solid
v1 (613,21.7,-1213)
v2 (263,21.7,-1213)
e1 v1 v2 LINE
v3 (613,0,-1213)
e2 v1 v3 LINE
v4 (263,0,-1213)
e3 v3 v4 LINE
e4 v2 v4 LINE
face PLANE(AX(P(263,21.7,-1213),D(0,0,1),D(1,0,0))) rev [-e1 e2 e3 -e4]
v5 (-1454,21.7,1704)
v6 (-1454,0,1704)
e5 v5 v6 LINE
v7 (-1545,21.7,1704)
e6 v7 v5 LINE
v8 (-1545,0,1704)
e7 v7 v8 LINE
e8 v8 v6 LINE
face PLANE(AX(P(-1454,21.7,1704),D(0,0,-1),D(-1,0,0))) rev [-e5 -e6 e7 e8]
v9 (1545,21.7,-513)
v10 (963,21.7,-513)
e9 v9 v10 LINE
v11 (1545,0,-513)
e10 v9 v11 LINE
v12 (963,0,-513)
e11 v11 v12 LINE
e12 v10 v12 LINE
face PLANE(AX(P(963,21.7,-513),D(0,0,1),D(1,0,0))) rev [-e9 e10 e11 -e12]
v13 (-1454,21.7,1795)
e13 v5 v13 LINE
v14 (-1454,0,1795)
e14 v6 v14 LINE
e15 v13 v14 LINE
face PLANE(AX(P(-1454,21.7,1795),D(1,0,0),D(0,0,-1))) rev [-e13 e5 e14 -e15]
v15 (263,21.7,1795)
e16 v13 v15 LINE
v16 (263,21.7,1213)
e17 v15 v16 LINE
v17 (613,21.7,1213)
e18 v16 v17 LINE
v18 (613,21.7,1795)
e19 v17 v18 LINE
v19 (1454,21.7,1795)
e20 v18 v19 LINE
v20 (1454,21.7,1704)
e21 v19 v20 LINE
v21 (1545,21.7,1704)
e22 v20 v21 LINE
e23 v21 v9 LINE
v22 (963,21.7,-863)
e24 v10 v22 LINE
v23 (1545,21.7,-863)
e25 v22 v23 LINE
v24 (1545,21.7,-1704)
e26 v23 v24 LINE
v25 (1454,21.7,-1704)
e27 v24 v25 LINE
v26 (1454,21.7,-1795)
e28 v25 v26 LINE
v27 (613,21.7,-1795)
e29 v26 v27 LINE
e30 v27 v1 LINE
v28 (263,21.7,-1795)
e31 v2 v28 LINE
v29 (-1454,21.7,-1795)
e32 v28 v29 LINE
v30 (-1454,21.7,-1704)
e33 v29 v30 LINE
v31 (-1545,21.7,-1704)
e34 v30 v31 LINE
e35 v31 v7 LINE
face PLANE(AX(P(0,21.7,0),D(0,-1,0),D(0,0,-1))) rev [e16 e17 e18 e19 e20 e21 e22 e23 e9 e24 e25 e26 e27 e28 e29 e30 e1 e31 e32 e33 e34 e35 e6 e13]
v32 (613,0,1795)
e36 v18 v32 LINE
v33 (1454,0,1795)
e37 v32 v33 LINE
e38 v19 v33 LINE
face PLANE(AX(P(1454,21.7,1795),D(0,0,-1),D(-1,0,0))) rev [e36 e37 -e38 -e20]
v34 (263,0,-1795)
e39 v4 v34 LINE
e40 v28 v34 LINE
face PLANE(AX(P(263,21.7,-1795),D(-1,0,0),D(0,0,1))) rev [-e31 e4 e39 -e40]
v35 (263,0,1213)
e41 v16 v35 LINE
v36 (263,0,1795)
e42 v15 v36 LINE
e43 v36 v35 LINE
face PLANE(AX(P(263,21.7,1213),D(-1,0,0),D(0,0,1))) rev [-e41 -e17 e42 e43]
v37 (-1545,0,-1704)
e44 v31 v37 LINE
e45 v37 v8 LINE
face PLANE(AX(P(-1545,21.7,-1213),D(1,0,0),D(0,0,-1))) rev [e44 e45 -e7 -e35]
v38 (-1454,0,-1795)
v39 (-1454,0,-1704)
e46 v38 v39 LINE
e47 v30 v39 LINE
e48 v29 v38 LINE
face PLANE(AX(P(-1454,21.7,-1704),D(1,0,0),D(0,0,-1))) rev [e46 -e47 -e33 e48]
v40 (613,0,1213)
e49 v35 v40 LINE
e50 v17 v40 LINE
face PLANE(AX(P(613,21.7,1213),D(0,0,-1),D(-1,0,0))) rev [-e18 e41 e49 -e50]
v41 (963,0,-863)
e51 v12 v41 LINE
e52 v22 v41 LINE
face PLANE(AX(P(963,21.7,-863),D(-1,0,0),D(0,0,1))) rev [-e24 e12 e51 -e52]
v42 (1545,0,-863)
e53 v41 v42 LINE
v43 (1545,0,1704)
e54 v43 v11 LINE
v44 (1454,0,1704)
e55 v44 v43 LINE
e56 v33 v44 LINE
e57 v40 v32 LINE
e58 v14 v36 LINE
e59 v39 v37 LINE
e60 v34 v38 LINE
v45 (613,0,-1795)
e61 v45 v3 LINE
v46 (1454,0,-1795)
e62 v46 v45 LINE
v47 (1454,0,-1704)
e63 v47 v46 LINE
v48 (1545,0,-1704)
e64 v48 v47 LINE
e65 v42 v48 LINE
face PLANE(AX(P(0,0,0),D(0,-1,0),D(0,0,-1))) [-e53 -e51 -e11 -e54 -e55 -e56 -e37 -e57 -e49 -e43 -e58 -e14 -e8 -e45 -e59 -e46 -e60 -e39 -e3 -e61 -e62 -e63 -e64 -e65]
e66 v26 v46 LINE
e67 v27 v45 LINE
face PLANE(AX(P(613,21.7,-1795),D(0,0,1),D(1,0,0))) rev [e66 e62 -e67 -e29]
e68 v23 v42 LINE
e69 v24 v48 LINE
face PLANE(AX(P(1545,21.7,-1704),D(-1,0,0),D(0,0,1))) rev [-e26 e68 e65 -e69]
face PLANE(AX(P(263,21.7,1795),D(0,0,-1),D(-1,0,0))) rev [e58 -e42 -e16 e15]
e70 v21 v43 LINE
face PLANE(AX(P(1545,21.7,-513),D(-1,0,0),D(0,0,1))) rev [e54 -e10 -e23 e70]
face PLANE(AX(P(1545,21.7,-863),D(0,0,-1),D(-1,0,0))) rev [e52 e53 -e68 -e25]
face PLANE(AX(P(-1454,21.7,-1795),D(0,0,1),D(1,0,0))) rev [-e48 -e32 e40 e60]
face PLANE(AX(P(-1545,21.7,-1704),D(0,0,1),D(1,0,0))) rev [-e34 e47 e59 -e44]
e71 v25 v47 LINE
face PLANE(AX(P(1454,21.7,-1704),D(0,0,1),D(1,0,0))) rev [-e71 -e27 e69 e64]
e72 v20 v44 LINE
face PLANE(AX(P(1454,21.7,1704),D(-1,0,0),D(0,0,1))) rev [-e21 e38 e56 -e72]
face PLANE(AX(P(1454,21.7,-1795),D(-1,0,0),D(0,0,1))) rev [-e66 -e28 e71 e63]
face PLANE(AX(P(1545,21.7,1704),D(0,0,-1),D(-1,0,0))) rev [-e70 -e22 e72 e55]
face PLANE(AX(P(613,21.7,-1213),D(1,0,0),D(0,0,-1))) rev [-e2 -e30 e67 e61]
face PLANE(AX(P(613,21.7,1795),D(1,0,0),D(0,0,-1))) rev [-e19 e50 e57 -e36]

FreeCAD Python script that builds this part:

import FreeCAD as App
import Part
import Sketcher


def add_polygon(sketch, points):
    """Adds a closed chain of lines whose ends are joined by coincident constraints."""
    first, n = sketch.GeometryCount, len(points)
    for a, b in zip(points, points[1:] + points[:1]):
        sketch.addGeometry(Part.LineSegment(App.Vector(*a, 0), App.Vector(*b, 0)), False)
    for i in range(n):
        sketch.addConstraint(Sketcher.Constraint("Coincident", first + i, 2, first + (i + 1) % n, 1))

doc = App.newDocument("Part")
body = doc.addObject("PartDesign::Body", "Body")

sketch1 = body.newObject("Sketcher::SketchObject", "Sketch")
sketch1.AttachmentSupport = (doc.getObject("XZ_Plane"), [""])
sketch1.MapMode = "FlatFace"
add_polygon(sketch1, [(-1454, 1795), (263, 1795), (263, 1213), (613, 1213), (613, 1795), (1454, 1795), (1454, 1704), (1545, 1704), (1545, -513), (963, -513), (963, -863), (1545, -863), (1545, -1704), (1454, -1704), (1454, -1795), (613, -1795), (613, -1213), (263, -1213), (263, -1795), (-1454, -1795), (-1454, -1704), (-1545, -1704), (-1545, 1704), (-1454, 1704)])
sketch1.addConstraint(Sketcher.Constraint("Horizontal", 0))
sketch1.addConstraint(Sketcher.Constraint("Vertical", 1))
sketch1.addConstraint(Sketcher.Constraint("Horizontal", 2))
sketch1.addConstraint(Sketcher.Constraint("Vertical", 3))
sketch1.addConstraint(Sketcher.Constraint("Horizontal", 4))
sketch1.addConstraint(Sketcher.Constraint("Vertical", 5))
sketch1.addConstraint(Sketcher.Constraint("Horizontal", 6))
sketch1.addConstraint(Sketcher.Constraint("Vertical", 7))
sketch1.addConstraint(Sketcher.Constraint("Horizontal", 8))
sketch1.addConstraint(Sketcher.Constraint("Vertical", 9))
sketch1.addConstraint(Sketcher.Constraint("Horizontal", 10))
sketch1.addConstraint(Sketcher.Constraint("Vertical", 11))
sketch1.addConstraint(Sketcher.Constraint("Horizontal", 12))
sketch1.addConstraint(Sketcher.Constraint("Vertical", 13))
sketch1.addConstraint(Sketcher.Constraint("Horizontal", 14))
sketch1.addConstraint(Sketcher.Constraint("Vertical", 15))
sketch1.addConstraint(Sketcher.Constraint("Horizontal", 16))
sketch1.addConstraint(Sketcher.Constraint("Vertical", 17))
sketch1.addConstraint(Sketcher.Constraint("Horizontal", 18))
sketch1.addConstraint(Sketcher.Constraint("Vertical", 19))
sketch1.addConstraint(Sketcher.Constraint("Horizontal", 20))
sketch1.addConstraint(Sketcher.Constraint("Vertical", 21))
sketch1.addConstraint(Sketcher.Constraint("Horizontal", 22))
sketch1.addConstraint(Sketcher.Constraint("Vertical", 23))
sketch1.addConstraint(Sketcher.Constraint("Symmetric", 4, 2, 18, 2, -1, 1))
sketch1.addConstraint(Sketcher.Constraint("Symmetric", 6, 2, 20, 2, -1, 1))
sketch1.addConstraint(Sketcher.Constraint("Symmetric", 11, 2, 21, 2, -1, 1))
sketch1.addConstraint(Sketcher.Constraint("Symmetric", 13, 2, 23, 2, -1, 1))
sketch1.addConstraint(Sketcher.Constraint("Symmetric", 13, 2, 18, 2, -2))
sketch1.addConstraint(Sketcher.Constraint("Symmetric", 2, 2, 15, 2, -1))
sketch1.addConstraint(Sketcher.Constraint("Horizontal", 12, 2, 19, 2))
sketch1.addConstraint(Sketcher.Constraint("Vertical", 1, 2, 16, 2))
sketch1.addConstraint(Sketcher.Constraint("Equal", 10, 1))
sketch1.addConstraint(Sketcher.Constraint("Equal", 22, 5))
sketch1.addConstraint(Sketcher.Constraint("Equal", 16, 9))
sketch1.addConstraint(Sketcher.Constraint("Equal", 14, 11))
sketch1.addConstraint(Sketcher.Constraint("DistanceX", 0, 1, 0, 2, 1717.0))
sketch1.addConstraint(Sketcher.Constraint("DistanceX", 2, 1, 2, 2, 350.0))
sketch1.addConstraint(Sketcher.Constraint("DistanceX", 4, 1, 4, 2, 841.0))
sketch1.addConstraint(Sketcher.Constraint("DistanceX", 6, 1, 6, 2, 91.0))
sketch1.addConstraint(Sketcher.Constraint("DistanceX", 8, 2, 8, 1, 582.0))
sketch1.addConstraint(Sketcher.Constraint("DistanceY", 7, 2, 7, 1, 2217.0))
pad1 = body.newObject("PartDesign::Pad", "Pad")
pad1.Profile = sketch1
pad1.Length = 21.7
pad1.Reversed = True

doc.recompute()
